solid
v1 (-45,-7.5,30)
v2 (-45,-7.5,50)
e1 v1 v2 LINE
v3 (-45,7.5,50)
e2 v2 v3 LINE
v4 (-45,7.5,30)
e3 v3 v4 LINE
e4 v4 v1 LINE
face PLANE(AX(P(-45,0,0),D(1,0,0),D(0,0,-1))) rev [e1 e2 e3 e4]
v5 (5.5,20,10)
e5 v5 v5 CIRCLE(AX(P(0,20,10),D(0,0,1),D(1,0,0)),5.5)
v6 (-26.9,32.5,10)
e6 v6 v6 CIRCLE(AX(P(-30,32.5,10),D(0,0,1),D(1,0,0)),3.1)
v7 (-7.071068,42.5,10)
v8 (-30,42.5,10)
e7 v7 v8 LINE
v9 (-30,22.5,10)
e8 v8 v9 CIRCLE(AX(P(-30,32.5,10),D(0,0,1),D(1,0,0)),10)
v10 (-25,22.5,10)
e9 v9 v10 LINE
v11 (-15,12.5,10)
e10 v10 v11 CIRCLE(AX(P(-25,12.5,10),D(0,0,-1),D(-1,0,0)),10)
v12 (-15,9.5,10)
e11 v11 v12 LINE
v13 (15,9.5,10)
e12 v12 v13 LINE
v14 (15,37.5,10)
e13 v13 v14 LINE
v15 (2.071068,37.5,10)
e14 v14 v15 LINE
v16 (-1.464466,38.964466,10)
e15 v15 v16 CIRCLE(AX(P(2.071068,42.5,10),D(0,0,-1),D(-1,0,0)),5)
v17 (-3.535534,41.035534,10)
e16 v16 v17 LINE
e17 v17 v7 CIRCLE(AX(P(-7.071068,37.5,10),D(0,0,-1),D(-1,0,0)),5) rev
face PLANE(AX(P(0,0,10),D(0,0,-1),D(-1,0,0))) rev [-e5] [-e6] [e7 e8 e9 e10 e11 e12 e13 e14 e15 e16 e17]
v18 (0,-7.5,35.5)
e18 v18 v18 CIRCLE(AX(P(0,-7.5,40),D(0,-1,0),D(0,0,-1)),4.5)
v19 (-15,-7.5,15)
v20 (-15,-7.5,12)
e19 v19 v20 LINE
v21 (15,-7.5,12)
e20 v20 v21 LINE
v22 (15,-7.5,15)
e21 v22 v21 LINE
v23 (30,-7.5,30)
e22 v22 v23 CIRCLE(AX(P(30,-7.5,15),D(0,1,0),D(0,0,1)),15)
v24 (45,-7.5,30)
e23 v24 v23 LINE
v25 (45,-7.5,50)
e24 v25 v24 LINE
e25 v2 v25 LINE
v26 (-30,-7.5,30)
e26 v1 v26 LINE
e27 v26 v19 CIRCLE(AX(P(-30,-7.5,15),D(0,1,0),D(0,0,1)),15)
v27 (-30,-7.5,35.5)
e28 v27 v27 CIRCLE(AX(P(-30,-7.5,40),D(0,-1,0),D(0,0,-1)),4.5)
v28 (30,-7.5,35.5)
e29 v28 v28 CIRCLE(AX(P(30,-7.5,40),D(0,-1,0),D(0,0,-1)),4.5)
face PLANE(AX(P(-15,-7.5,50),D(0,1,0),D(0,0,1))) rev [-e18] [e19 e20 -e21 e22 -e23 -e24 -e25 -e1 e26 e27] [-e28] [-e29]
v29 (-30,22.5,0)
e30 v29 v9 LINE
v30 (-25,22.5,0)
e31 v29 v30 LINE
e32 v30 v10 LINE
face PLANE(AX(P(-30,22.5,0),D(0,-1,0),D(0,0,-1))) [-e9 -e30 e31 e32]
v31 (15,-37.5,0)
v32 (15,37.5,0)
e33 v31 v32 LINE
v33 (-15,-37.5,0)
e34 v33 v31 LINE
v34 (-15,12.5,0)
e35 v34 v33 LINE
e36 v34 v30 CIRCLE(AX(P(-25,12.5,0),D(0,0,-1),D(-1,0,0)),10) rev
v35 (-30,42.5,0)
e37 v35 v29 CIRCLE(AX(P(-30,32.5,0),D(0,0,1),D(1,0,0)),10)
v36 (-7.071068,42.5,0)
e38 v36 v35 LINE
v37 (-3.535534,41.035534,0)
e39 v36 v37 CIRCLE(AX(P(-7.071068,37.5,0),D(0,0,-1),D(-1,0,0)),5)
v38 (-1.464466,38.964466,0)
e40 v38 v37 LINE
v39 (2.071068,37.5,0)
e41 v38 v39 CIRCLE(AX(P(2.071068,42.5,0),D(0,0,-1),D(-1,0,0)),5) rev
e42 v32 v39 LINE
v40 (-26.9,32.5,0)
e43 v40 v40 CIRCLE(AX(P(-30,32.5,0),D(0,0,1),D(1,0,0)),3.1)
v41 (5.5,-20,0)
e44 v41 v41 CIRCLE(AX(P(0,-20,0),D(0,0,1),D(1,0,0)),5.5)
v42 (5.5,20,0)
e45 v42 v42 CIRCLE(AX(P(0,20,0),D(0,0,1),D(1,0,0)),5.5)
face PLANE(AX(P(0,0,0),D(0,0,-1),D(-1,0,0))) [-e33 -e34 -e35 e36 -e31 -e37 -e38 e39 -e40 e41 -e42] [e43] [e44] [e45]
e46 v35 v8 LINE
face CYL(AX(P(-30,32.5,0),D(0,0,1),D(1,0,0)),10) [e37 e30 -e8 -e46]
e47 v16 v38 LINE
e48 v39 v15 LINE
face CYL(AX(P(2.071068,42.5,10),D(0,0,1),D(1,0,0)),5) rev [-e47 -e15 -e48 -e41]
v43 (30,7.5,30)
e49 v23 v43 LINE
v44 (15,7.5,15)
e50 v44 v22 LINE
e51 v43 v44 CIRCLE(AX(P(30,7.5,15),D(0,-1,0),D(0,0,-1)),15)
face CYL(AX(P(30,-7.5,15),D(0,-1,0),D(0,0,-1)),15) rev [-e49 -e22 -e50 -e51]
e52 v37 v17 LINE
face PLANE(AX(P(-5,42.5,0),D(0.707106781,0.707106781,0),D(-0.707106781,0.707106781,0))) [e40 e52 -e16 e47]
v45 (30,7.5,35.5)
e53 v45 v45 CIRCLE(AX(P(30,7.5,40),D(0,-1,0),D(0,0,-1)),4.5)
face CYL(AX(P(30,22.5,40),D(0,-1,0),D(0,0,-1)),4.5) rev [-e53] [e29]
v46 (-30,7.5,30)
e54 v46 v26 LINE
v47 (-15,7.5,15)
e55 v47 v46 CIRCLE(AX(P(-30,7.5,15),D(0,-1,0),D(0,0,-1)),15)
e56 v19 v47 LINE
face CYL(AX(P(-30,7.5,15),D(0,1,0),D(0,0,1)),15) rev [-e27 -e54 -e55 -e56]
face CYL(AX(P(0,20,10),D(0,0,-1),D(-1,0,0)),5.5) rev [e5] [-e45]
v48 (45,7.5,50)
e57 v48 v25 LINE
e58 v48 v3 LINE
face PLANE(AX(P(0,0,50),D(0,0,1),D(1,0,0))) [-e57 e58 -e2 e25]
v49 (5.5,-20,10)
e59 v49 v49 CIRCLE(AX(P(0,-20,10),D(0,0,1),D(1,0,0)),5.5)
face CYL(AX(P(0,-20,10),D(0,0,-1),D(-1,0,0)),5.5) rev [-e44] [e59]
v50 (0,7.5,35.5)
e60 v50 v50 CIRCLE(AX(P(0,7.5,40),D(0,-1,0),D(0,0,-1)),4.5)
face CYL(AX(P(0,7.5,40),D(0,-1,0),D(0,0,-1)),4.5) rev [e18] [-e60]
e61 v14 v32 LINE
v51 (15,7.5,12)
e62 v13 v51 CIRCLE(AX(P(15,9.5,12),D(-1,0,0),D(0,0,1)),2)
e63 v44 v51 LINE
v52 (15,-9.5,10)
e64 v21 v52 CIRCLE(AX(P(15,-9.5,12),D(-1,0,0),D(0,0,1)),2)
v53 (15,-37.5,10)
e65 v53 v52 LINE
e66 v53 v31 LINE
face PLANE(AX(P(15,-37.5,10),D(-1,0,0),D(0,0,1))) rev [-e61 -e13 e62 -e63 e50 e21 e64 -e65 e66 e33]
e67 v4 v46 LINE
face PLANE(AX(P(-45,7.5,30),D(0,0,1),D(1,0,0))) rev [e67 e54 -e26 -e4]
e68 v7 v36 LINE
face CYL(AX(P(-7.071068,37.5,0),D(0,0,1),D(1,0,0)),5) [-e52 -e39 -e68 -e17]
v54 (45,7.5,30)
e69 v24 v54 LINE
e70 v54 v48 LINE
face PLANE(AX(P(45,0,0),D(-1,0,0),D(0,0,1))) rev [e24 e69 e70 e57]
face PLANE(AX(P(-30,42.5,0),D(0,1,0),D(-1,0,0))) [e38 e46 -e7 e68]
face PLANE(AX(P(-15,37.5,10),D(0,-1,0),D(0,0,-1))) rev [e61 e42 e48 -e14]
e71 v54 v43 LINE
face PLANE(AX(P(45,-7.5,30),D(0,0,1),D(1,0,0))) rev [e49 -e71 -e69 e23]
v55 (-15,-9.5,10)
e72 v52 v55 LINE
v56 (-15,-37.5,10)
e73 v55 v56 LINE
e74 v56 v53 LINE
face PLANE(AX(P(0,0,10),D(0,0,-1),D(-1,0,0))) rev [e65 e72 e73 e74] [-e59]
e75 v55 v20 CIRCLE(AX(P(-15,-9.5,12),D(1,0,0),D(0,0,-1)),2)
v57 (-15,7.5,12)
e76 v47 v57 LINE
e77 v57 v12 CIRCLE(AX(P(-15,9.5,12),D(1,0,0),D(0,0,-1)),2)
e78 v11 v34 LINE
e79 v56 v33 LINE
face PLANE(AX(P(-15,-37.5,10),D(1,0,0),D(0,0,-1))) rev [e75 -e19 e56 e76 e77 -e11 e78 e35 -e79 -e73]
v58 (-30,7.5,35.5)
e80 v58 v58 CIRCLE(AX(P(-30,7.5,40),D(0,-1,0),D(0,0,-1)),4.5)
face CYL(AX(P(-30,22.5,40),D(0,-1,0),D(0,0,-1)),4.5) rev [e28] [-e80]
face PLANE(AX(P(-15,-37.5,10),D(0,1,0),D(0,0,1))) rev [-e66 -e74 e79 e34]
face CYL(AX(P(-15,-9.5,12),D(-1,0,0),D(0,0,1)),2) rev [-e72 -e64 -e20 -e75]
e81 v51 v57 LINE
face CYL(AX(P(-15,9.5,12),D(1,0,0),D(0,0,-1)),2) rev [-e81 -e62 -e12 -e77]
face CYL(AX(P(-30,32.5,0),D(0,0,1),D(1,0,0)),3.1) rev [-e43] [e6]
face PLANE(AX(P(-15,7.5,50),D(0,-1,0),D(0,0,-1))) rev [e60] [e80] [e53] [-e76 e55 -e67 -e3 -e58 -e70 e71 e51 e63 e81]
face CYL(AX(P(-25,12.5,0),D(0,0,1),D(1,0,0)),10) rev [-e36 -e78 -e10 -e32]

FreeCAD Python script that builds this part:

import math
import FreeCAD as App
import Part
import Sketcher
from FreeCAD import Vector
Q = App.Units.Quantity


def edges_at(feature, points):
    """Names of the edges that pass closest to the given points."""
    edges = feature.Shape.Edges
    near = lambda p: min(range(len(edges)), key=lambda i: edges[i].distToShape(Part.Vertex(*p))[0])
    return sorted({f"Edge{near(p) + 1}" for p in points})


def add_polygon(sketch, points):
    """Adds a closed chain of lines whose ends are joined by coincident constraints."""
    first, n = sketch.GeometryCount, len(points)
    for a, b in zip(points, points[1:] + points[:1]):
        sketch.addGeometry(Part.LineSegment(App.Vector(*a, 0), App.Vector(*b, 0)), False)
    for i in range(n):
        sketch.addConstraint(Sketcher.Constraint("Coincident", first + i, 2, first + (i + 1) % n, 1))

doc = App.newDocument("Part")
body = doc.addObject("PartDesign::Body", "Body")

# Sketch on XY plane
sketch1 = body.newObject("Sketcher::SketchObject", "Sketch")
sketch1.AttachmentSupport = (doc.getObject("XY_Plane"), [""])
sketch1.MapMode = "FlatFace"
add_polygon(sketch1, [(-15, 37.5), (-15, -37.5), (15, -37.5), (15, 37.5)])  # lines 0-3
sketch1.addGeometry(Part.Circle(Vector(0, -20, 0), Vector(0, 0, 1), 5.5), False)  # 4
sketch1.addGeometry(Part.Circle(Vector(0, 20, 0), Vector(0, 0, 1), 5.5), False)  # 5
sketch1.addConstraint([
    Sketcher.Constraint("Vertical", 0),
    Sketcher.Constraint("Horizontal", 1),
    Sketcher.Constraint("Vertical", 2),
    Sketcher.Constraint("Horizontal", 3),
    Sketcher.Constraint("Equal", 4, 5),
    Sketcher.Constraint("Symmetric", 4, 3, 5, 3, -1, 1),
    Sketcher.Constraint("Symmetric", 0, 2, 2, 2, -1, 1),
    Sketcher.Constraint("PointOnObject", 4, 3, -2),
    Sketcher.Constraint("Diameter", 4, Q("11 mm")),
    Sketcher.Constraint("DistanceX", 1, 1, 1, 2, Q("30 mm")),
    Sketcher.Constraint("DistanceY", 0, 2, 0, 1, Q("75 mm")),
    Sketcher.Constraint("DistanceY", 4, 3, -1, 1, Q("20 mm")),
])
pad1 = body.newObject("PartDesign::Pad", "Pad")
pad1.Profile = sketch1
pad1.Length = 10

# Sketch on XY plane
sketch2 = body.newObject("Sketcher::SketchObject", "Sketch001")
sketch2.AttachmentSupport = (doc.getObject("XY_Plane"), [""])
sketch2.MapMode = "FlatFace"
sketch2.AttachmentOffset = App.Placement(Vector(0, 0, 10), App.Rotation())
add_polygon(sketch2, [(-15, 7.5), (-15, -7.5), (15, -7.5), (15, 7.5)])  # lines 0-3
sketch2.addConstraint([
    Sketcher.Constraint("Vertical", 0),
    Sketcher.Constraint("Horizontal", 1),
    Sketcher.Constraint("Vertical", 2),
    Sketcher.Constraint("Horizontal", 3),
    Sketcher.Constraint("Symmetric", 0, 2, 2, 2, -1, 1),
    Sketcher.Constraint("DistanceX", 1, 1, 1, 2, Q("30 mm")),
    Sketcher.Constraint("DistanceY", 0, 2, 0, 1, Q("15 mm")),
])
pad2 = body.newObject("PartDesign::Pad", "Pad001")
pad2.Profile = sketch2
pad2.Length = 40
doc.recompute()

fillet = body.newObject("PartDesign::Fillet", "Fillet")
fillet.Base = (pad2, edges_at(pad2, [(0, 7.5, 10), (0, -7.5, 10)]))
fillet.Radius = 2

# Sketch on XZ plane
sketch3 = body.newObject("Sketcher::SketchObject", "Sketch002")
sketch3.AttachmentSupport = (doc.getObject("XZ_Plane"), [""])
sketch3.MapMode = "FlatFace"
sketch3.AttachmentOffset = App.Placement(Vector(0, 0, 7.5), App.Rotation())
sketch3.addGeometry(Part.Circle(Vector(0, 40, 0), Vector(0, 0, 1), 4.5), False)
sketch3.addConstraint([
    Sketcher.Constraint("PointOnObject", 0, 3, -2),
    Sketcher.Constraint("Diameter", 0, Q("9 mm")),
    Sketcher.Constraint("DistanceY", -1, 1, 0, 3, Q("40 mm")),
])
pocket1 = body.newObject("PartDesign::Pocket", "Pocket")
pocket1.Profile = sketch3
pocket1.Length = 15

# Sketch on YZ plane
sketch4 = body.newObject("Sketcher::SketchObject", "Sketch003")
sketch4.AttachmentSupport = (doc.getObject("YZ_Plane"), [""])
sketch4.MapMode = "FlatFace"
sketch4.AttachmentOffset = App.Placement(Vector(0, 0, 15), App.Rotation())
add_polygon(sketch4, [(7.5, 50), (-7.5, 50), (-7.5, 30), (7.5, 30)])  # lines 0-3
sketch4.addConstraint([
    Sketcher.Constraint("Horizontal", 0),
    Sketcher.Constraint("Vertical", 1),
    Sketcher.Constraint("Horizontal", 2),
    Sketcher.Constraint("Vertical", 3),
    Sketcher.Constraint("DistanceX", 0, 2, 0, 1, Q("15 mm")),
    Sketcher.Constraint("DistanceY", 1, 2, 1, 1, Q("20 mm")),
    Sketcher.Constraint("DistanceY", -1, 1, 0, 2, Q("50 mm")),
    Sketcher.Constraint("DistanceX", 0, 2, -1, 1, Q("7.5 mm")),
])
pad3 = body.newObject("PartDesign::Pad", "Pad002")
pad3.Profile = sketch4
pad3.Length = 30

# Sketch on XZ plane
sketch5 = body.newObject("Sketcher::SketchObject", "Sketch004")
sketch5.AttachmentSupport = (doc.getObject("XZ_Plane"), [""])
sketch5.MapMode = "FlatFace"
sketch5.AttachmentOffset = App.Placement(Vector(0, 0, 7.5), App.Rotation())
sketch5.addGeometry(Part.Circle(Vector(30, 40, 0), Vector(0, 0, 1), 4.5), False)
sketch5.addConstraint([
    Sketcher.Constraint("Diameter", 0, Q("9 mm")),
    Sketcher.Constraint("DistanceX", -1, 1, 0, 3, Q("30 mm")),
    Sketcher.Constraint("DistanceY", -1, 1, 0, 3, Q("40 mm")),
])
pocket2 = body.newObject("PartDesign::Pocket", "Pocket001")
pocket2.Profile = sketch5
pocket2.Length = 30
doc.recompute()

fillet2 = body.newObject("PartDesign::Fillet", "Fillet001")
fillet2.Base = (pocket2, edges_at(pocket2, [(15, 0, 30)]))
fillet2.Radius = 15

# Sketch on YZ plane
sketch6 = body.newObject("Sketcher::SketchObject", "Sketch005")
sketch6.AttachmentSupport = (doc.getObject("YZ_Plane"), [""])
sketch6.MapMode = "FlatFace"
sketch6.AttachmentOffset = App.Placement(Vector(0, 0, -15), App.Rotation())
add_polygon(sketch6, [(7.5, 30), (-7.5, 30), (-7.5, 50), (7.5, 50)])  # lines 0-3
sketch6.addConstraint([
    Sketcher.Constraint("Horizontal", 0),
    Sketcher.Constraint("Vertical", 1),
    Sketcher.Constraint("Horizontal", 2),
    Sketcher.Constraint("Vertical", 3),
    Sketcher.Constraint("DistanceX", 0, 2, 0, 1, Q("15 mm")),
    Sketcher.Constraint("DistanceY", 1, 1, 1, 2, Q("20 mm")),
    Sketcher.Constraint("DistanceY", -1, 1, 0, 2, Q("30 mm")),
    Sketcher.Constraint("DistanceX", 0, 2, -1, 1, Q("7.5 mm")),
])
pad4 = body.newObject("PartDesign::Pad", "Pad003")
pad4.Profile = sketch6
pad4.Length = 30
pad4.Reversed = True
doc.recompute()

fillet3 = body.newObject("PartDesign::Fillet", "Fillet002")
fillet3.Base = (pad4, edges_at(pad4, [(-15, 0, 30)]))
fillet3.Radius = 15

# Sketch on XZ plane
sketch7 = body.newObject("Sketcher::SketchObject", "Sketch006")
sketch7.AttachmentSupport = (doc.getObject("XZ_Plane"), [""])
sketch7.MapMode = "FlatFace"
sketch7.AttachmentOffset = App.Placement(Vector(0, 0, 7.5), App.Rotation())
sketch7.addGeometry(Part.Circle(Vector(-30, 40, 0), Vector(0, 0, 1), 4.5), False)
sketch7.addConstraint([
    Sketcher.Constraint("Diameter", 0, Q("9 mm")),
    Sketcher.Constraint("DistanceX", 0, 3, -1, 1, Q("30 mm")),
    Sketcher.Constraint("DistanceY", -1, 1, 0, 3, Q("40 mm")),
])
pocket3 = body.newObject("PartDesign::Pocket", "Pocket002")
pocket3.Profile = sketch7
pocket3.Length = 30

# Sketch on XY plane
sketch8 = body.newObject("Sketcher::SketchObject", "Sketch007")
sketch8.AttachmentSupport = (doc.getObject("XY_Plane"), [""])
sketch8.MapMode = "FlatFace"
sketch8.AttachmentOffset = App.Placement(Vector(0, 0, 10), App.Rotation())
sketch8.addGeometry([
    Part.LineSegment(Vector(-5, 42.5, 0), Vector(-30, 42.5, 0)),  # 0
    Part.ArcOfCircle(Part.Circle(Vector(-30, 32.5, 0), Vector(0, 0, 1), 10), math.radians(90), math.radians(270)),  # 1
    Part.LineSegment(Vector(-30, 22.5, 0), Vector(-15, 22.5, 0)),  # 2
    Part.LineSegment(Vector(-15, 22.5, 0), Vector(0, 37.5, 0)),  # 3
    Part.LineSegment(Vector(0, 37.5, 0), Vector(-5, 42.5, 0)),  # 4
], False)
sketch8.addConstraint([
    Sketcher.Constraint("Tangent", 0, 2, 1, 1),
    Sketcher.Constraint("Tangent", 1, 2, 2, 1),
    Sketcher.Constraint("Coincident", 2, 2, 3, 1),
    Sketcher.Constraint("Coincident", 3, 2, 4, 1),
    Sketcher.Constraint("Coincident", 4, 2, 0, 1),
    Sketcher.Constraint("Horizontal", 0),
    Sketcher.Constraint("Horizontal", 2),
    Sketcher.Constraint("PointOnObject", 3, 2, -2),
    Sketcher.Constraint("Perpendicular", 3, 4),
    Sketcher.Constraint("Radius", 1, Q("10 mm")),
    Sketcher.Constraint("DistanceX", 0, 2, 0, 1, Q("25 mm")),
    Sketcher.Constraint("DistanceX", 2, 1, 2, 2, Q("15 mm")),
    Sketcher.Constraint("Angle", 3, Q("45 deg")),
    Sketcher.Constraint("DistanceY", -1, 1, 1, 3, Q("32.5 mm")),
])
pad5 = body.newObject("PartDesign::Pad", "Pad004")
pad5.Profile = sketch8
pad5.Length = 10
pad5.Reversed = True
doc.recompute()

fillet4 = body.newObject("PartDesign::Fillet", "Fillet003")
fillet4.Base = (pad5, edges_at(pad5, [(-5, 42.5, 5), (0, 37.5, 5)]))
fillet4.Radius = 5
doc.recompute()

fillet5 = body.newObject("PartDesign::Fillet", "Fillet004")
fillet5.Base = (fillet4, edges_at(fillet4, [(-15, 22.5, 5)]))
fillet5.Radius = 10

# Sketch on XY plane
sketch9 = body.newObject("Sketcher::SketchObject", "Sketch008")
sketch9.AttachmentSupport = (doc.getObject("XY_Plane"), [""])
sketch9.MapMode = "FlatFace"
sketch9.AttachmentOffset = App.Placement(Vector(0, 0, 10), App.Rotation())
sketch9.addGeometry(Part.Circle(Vector(-30, 32.5, 0), Vector(0, 0, 1), 3.1), False)
sketch9.addConstraint([
    Sketcher.Constraint("Diameter", 0, Q("6.2 mm")),
    Sketcher.Constraint("DistanceX", 0, 3, -1, 1, Q("30 mm")),
    Sketcher.Constraint("DistanceY", -1, 1, 0, 3, Q("32.5 mm")),
])
pocket4 = body.newObject("PartDesign::Pocket", "Pocket003")
pocket4.Profile = sketch9
pocket4.Length = 10

doc.recompute()
